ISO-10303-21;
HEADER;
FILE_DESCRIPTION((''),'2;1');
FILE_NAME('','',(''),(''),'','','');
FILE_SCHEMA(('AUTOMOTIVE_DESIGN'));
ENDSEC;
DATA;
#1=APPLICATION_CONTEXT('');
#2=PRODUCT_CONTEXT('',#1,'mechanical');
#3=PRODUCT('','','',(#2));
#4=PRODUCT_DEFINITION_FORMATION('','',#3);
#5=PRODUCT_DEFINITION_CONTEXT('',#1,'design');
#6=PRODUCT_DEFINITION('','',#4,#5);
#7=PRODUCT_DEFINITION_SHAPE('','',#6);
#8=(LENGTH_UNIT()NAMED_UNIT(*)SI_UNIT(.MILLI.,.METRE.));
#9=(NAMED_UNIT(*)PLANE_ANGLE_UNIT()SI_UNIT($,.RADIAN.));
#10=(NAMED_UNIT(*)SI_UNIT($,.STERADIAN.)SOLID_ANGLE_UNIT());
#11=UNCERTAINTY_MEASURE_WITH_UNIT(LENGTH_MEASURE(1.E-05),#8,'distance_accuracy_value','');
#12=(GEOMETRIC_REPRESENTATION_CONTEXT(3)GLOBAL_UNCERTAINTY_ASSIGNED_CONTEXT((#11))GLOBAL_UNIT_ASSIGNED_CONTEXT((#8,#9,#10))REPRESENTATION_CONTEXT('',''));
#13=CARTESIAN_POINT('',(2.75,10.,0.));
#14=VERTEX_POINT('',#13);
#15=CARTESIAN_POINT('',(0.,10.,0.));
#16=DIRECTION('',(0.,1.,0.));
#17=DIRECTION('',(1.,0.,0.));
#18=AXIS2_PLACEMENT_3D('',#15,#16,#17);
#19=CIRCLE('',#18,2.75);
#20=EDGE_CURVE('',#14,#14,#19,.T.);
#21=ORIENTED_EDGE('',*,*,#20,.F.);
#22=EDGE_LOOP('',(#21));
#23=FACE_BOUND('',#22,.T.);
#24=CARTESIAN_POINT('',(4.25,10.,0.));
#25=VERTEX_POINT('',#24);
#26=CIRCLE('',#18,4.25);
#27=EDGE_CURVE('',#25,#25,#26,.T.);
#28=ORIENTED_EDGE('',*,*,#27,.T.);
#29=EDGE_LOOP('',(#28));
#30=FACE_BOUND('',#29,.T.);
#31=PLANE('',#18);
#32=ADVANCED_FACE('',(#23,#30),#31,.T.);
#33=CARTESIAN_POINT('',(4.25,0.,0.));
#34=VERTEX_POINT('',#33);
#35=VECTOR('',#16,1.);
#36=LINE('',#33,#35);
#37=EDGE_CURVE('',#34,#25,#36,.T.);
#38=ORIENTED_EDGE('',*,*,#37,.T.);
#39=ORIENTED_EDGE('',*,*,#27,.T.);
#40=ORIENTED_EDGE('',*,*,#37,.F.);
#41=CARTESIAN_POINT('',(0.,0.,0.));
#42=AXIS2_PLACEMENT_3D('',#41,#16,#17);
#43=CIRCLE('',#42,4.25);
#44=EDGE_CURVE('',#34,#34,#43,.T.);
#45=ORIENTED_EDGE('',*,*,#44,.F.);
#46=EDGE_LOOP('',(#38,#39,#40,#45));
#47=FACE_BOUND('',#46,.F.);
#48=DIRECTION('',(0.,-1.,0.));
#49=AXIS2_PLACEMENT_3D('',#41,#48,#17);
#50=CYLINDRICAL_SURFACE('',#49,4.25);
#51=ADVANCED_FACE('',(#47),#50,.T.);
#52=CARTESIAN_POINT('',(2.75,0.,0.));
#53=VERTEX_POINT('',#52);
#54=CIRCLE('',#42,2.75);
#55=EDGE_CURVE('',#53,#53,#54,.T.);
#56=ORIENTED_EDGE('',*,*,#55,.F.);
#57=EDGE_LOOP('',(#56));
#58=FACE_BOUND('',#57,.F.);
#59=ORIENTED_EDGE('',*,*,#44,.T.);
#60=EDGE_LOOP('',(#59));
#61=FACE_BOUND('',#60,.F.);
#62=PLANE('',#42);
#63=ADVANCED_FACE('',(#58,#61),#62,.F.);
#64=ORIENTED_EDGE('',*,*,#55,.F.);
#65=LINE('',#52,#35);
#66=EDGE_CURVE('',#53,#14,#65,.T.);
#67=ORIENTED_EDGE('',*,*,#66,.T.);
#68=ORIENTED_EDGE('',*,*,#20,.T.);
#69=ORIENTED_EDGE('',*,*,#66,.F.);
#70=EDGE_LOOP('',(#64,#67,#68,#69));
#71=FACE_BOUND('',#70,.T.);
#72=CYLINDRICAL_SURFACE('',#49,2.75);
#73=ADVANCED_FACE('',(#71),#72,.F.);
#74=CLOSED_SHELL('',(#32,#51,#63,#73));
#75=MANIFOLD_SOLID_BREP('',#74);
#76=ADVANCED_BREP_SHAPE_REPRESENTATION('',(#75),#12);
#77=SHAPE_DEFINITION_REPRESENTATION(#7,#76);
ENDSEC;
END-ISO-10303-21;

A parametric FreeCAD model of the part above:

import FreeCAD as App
import Part
import Sketcher

V = App.Vector
Q = App.Units.Quantity

doc = App.newDocument("Part")
params = doc.addObject("Spreadsheet::Sheet", "Params")
for row, (alias, value) in enumerate([
    ("sketch1_diameter", "8.5 mm"),
    ("sketch1_diameter2", "5.5 mm"),
    ("pad1_length", "10 mm"),
], start=1):
    params.set(f"A{row}", alias)
    params.set(f"B{row}", "=" + value)
    params.setAlias(f"B{row}", alias)

body = doc.addObject("PartDesign::Body", "Body")

# Sketch on XZ plane
sketch1 = body.newObject("Sketcher::SketchObject", "Sketch")
sketch1.AttachmentSupport = (doc.getObject("XZ_Plane"), [""])
sketch1.MapMode = "FlatFace"
sketch1.addGeometry([
    Part.Circle(V(0, 0, 0), V(0, 0, 1), 4.2),
    Part.Circle(V(0, 0, 0), V(0, 0, 1), 2.8),
], False)
sketch1.addConstraint([
    Sketcher.Constraint("Coincident", 0, 3, -1, 1),
    Sketcher.Constraint("Coincident", 1, 3, -1, 1),
    Sketcher.Constraint("Diameter", 0, Q("8.5 mm")),
    Sketcher.Constraint("Diameter", 1, Q("5.5 mm")),
])
sketch1.setExpression("Constraints[2]", "Params.sketch1_diameter")
sketch1.setExpression("Constraints[3]", "Params.sketch1_diameter2")
pad1 = body.newObject("PartDesign::Pad", "Pad")
pad1.Profile = sketch1
pad1.setExpression("Length", "Params.pad1_length")
pad1.Reversed = True

doc.recompute()
